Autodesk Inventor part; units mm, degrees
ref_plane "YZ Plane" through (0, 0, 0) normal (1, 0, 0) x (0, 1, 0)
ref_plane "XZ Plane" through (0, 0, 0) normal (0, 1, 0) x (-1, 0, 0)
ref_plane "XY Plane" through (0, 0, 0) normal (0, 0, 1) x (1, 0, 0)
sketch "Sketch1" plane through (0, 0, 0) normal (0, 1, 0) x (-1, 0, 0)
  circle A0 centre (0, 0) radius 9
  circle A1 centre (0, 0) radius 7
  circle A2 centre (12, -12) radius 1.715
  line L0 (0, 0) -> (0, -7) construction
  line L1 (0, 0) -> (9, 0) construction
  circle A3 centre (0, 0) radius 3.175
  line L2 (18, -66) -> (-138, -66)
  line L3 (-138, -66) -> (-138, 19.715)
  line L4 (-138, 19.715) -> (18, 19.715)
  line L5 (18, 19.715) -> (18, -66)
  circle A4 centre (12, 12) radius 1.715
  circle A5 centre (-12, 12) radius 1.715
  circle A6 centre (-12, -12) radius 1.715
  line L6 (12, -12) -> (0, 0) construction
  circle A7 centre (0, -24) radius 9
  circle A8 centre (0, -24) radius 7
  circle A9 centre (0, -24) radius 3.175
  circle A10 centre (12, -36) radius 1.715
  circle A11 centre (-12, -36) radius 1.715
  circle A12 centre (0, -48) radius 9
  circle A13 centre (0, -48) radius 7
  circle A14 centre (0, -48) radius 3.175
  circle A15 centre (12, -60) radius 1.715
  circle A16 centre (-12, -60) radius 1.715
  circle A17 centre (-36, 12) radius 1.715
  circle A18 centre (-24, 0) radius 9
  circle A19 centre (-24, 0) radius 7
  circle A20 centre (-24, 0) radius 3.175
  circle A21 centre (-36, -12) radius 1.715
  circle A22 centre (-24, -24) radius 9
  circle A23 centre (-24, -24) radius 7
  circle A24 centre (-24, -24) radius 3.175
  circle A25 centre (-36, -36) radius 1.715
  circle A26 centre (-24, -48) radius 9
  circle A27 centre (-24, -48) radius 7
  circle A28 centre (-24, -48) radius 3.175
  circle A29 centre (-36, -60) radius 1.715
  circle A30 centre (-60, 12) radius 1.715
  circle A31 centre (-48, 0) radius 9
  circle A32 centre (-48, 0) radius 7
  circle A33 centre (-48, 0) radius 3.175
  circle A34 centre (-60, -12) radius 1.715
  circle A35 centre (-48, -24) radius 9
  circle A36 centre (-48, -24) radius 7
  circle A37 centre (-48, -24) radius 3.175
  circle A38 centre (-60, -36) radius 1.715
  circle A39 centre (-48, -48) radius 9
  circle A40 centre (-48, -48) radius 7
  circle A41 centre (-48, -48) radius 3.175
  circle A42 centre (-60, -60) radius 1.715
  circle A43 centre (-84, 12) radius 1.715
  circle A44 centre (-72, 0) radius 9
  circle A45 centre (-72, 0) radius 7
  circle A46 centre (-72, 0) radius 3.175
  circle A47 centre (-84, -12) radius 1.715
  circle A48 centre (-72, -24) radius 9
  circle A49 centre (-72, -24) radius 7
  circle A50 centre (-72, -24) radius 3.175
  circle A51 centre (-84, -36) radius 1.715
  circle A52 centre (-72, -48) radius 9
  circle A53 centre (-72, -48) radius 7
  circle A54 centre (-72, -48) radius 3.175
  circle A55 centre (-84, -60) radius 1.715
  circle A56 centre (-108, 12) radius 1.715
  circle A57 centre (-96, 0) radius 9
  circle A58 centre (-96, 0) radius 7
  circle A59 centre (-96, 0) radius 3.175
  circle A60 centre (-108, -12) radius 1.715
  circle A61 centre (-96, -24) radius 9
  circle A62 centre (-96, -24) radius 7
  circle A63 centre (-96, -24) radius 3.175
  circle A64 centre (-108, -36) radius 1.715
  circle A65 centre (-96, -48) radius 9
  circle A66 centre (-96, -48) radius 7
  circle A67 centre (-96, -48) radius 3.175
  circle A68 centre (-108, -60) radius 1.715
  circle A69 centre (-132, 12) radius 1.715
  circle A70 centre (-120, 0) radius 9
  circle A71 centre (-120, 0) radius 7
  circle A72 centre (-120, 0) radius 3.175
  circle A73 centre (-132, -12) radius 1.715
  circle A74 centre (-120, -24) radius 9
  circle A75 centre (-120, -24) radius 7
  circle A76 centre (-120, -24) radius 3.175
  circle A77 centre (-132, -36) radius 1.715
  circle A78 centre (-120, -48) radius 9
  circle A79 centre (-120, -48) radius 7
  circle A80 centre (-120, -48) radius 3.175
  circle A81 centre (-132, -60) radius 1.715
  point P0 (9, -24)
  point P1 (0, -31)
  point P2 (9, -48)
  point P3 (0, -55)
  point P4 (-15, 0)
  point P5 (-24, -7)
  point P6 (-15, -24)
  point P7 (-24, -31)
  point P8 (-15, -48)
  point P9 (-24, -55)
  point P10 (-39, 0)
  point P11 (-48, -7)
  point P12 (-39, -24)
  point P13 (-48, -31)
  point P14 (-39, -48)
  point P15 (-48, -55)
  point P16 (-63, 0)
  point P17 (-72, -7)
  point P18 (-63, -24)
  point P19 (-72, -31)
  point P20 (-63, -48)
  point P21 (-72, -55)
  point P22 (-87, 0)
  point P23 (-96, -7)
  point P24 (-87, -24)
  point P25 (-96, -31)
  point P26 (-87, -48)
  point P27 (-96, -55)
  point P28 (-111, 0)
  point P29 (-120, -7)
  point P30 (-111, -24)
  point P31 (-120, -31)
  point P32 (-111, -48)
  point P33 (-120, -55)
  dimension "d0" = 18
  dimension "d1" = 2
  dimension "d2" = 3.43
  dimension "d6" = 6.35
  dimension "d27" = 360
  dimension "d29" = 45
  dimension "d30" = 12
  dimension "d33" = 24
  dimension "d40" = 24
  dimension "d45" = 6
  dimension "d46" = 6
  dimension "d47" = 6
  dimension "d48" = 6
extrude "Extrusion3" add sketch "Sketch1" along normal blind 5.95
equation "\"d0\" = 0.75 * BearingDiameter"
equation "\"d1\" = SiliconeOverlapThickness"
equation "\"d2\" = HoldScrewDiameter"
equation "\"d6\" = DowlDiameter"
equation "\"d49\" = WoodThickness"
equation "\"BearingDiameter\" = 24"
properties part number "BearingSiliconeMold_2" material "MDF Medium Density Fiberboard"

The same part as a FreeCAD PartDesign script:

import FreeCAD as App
import Part
import Sketcher
from FreeCAD import Vector


def add_polygon(sketch, points):
    """Adds a closed chain of lines whose ends are joined by coincident constraints."""
    first, n = sketch.GeometryCount, len(points)
    for a, b in zip(points, points[1:] + points[:1]):
        sketch.addGeometry(Part.LineSegment(App.Vector(*a, 0), App.Vector(*b, 0)), False)
    for i in range(n):
        sketch.addConstraint(Sketcher.Constraint("Coincident", first + i, 2, first + (i + 1) % n, 1))

doc = App.newDocument("Part")
body = doc.addObject("PartDesign::Body", "Body")
body.AllowCompound = True

sketch1 = doc.addObject("Sketcher::SketchObject", "Sketch")
body.addObject(sketch1)
sketch1.AttachmentSupport = (doc.XZ_Plane, [""])
sketch1.MapMode = "FlatFace"
sketch1.addGeometry(Part.Circle(Vector(0, 0, 0), Vector(0, 0, 1), 7), False)
sketch1.addGeometry(Part.Circle(Vector(0, 0, 0), Vector(0, 0, 1), 3.2), False)
add_polygon(sketch1, [(138, -66), (-18, -66), (-18, 19.7), (138, 19.7)])
sketch1.addGeometry(Part.Circle(Vector(132, -60, 0), Vector(0, 0, 1), 1.7), False)
sketch1.addGeometry(Part.Circle(Vector(108, -60, 0), Vector(0, 0, 1), 1.7), False)
sketch1.addGeometry(Part.Circle(Vector(120, -48, 0), Vector(0, 0, 1), 9), False)
sketch1.addGeometry(Part.Circle(Vector(84, -60, 0), Vector(0, 0, 1), 1.7), False)
sketch1.addGeometry(Part.Circle(Vector(96, -48, 0), Vector(0, 0, 1), 9), False)
sketch1.addGeometry(Part.Circle(Vector(72, -48, 0), Vector(0, 0, 1), 9), False)
sketch1.addGeometry(Part.Circle(Vector(132, -36, 0), Vector(0, 0, 1), 1.7), False)
sketch1.addGeometry(Part.Circle(Vector(108, -36, 0), Vector(0, 0, 1), 1.7), False)
sketch1.addGeometry(Part.Circle(Vector(120, -24, 0), Vector(0, 0, 1), 9), False)
sketch1.addGeometry(Part.Circle(Vector(84, -36, 0), Vector(0, 0, 1), 1.7), False)
sketch1.addGeometry(Part.Circle(Vector(96, -24, 0), Vector(0, 0, 1), 9), False)
sketch1.addGeometry(Part.Circle(Vector(72, -24, 0), Vector(0, 0, 1), 9), False)
sketch1.addGeometry(Part.Circle(Vector(60, -60, 0), Vector(0, 0, 1), 1.7), False)
sketch1.addGeometry(Part.Circle(Vector(36, -60, 0), Vector(0, 0, 1), 1.7), False)
sketch1.addGeometry(Part.Circle(Vector(48, -48, 0), Vector(0, 0, 1), 9), False)
sketch1.addGeometry(Part.Circle(Vector(24, -48, 0), Vector(0, 0, 1), 9), False)
sketch1.addGeometry(Part.Circle(Vector(12, -60, 0), Vector(0, 0, 1), 1.7), False)
sketch1.addGeometry(Part.Circle(Vector(-12, -60, 0), Vector(0, 0, 1), 1.7), False)
sketch1.addGeometry(Part.Circle(Vector(0, -48, 0), Vector(0, 0, 1), 9), False)
sketch1.addGeometry(Part.Circle(Vector(60, -36, 0), Vector(0, 0, 1), 1.7), False)
sketch1.addGeometry(Part.Circle(Vector(36, -36, 0), Vector(0, 0, 1), 1.7), False)
sketch1.addGeometry(Part.Circle(Vector(48, -24, 0), Vector(0, 0, 1), 9), False)
sketch1.addGeometry(Part.Circle(Vector(24, -24, 0), Vector(0, 0, 1), 9), False)
sketch1.addGeometry(Part.Circle(Vector(12, -36, 0), Vector(0, 0, 1), 1.7), False)
sketch1.addGeometry(Part.Circle(Vector(-12, -36, 0), Vector(0, 0, 1), 1.7), False)
sketch1.addGeometry(Part.Circle(Vector(0, -24, 0), Vector(0, 0, 1), 9), False)
sketch1.addGeometry(Part.Circle(Vector(132, -12, 0), Vector(0, 0, 1), 1.7), False)
sketch1.addGeometry(Part.Circle(Vector(108, -12, 0), Vector(0, 0, 1), 1.7), False)
sketch1.addGeometry(Part.Circle(Vector(84, -12, 0), Vector(0, 0, 1), 1.7), False)
sketch1.addGeometry(Part.Circle(Vector(120, 0, 0), Vector(0, 0, 1), 9), False)
sketch1.addGeometry(Part.Circle(Vector(132, 12, 0), Vector(0, 0, 1), 1.7), False)
sketch1.addGeometry(Part.Circle(Vector(108, 12, 0), Vector(0, 0, 1), 1.7), False)
sketch1.addGeometry(Part.Circle(Vector(96, 0, 0), Vector(0, 0, 1), 9), False)
sketch1.addGeometry(Part.Circle(Vector(72, 0, 0), Vector(0, 0, 1), 9), False)
sketch1.addGeometry(Part.Circle(Vector(84, 12, 0), Vector(0, 0, 1), 1.7), False)
sketch1.addGeometry(Part.Circle(Vector(60, -12, 0), Vector(0, 0, 1), 1.7), False)
sketch1.addGeometry(Part.Circle(Vector(36, -12, 0), Vector(0, 0, 1), 1.7), False)
sketch1.addGeometry(Part.Circle(Vector(12, -12, 0), Vector(0, 0, 1), 1.7), False)
sketch1.addGeometry(Part.Circle(Vector(-12, -12, 0), Vector(0, 0, 1), 1.7), False)
sketch1.addGeometry(Part.Circle(Vector(48, 0, 0), Vector(0, 0, 1), 9), False)
sketch1.addGeometry(Part.Circle(Vector(24, 0, 0), Vector(0, 0, 1), 9), False)
sketch1.addGeometry(Part.Circle(Vector(60, 12, 0), Vector(0, 0, 1), 1.7), False)
sketch1.addGeometry(Part.Circle(Vector(36, 12, 0), Vector(0, 0, 1), 1.7), False)
sketch1.addGeometry(Part.Circle(Vector(0, 0, 0), Vector(0, 0, 1), 9), False)
sketch1.addGeometry(Part.Circle(Vector(12, 12, 0), Vector(0, 0, 1), 1.7), False)
sketch1.addGeometry(Part.Circle(Vector(-12, 12, 0), Vector(0, 0, 1), 1.7), False)
sketch1.addGeometry(Part.Circle(Vector(0, -24, 0), Vector(0, 0, 1), 7), False)
sketch1.addGeometry(Part.Circle(Vector(0, -24, 0), Vector(0, 0, 1), 3.2), False)
sketch1.addGeometry(Part.Circle(Vector(0, -48, 0), Vector(0, 0, 1), 7), False)
sketch1.addGeometry(Part.Circle(Vector(0, -48, 0), Vector(0, 0, 1), 3.2), False)
sketch1.addGeometry(Part.Circle(Vector(24, 0, 0), Vector(0, 0, 1), 7), False)
sketch1.addGeometry(Part.Circle(Vector(24, 0, 0), Vector(0, 0, 1), 3.2), False)
sketch1.addGeometry(Part.Circle(Vector(24, -24, 0), Vector(0, 0, 1), 7), False)
sketch1.addGeometry(Part.Circle(Vector(24, -24, 0), Vector(0, 0, 1), 3.2), False)
sketch1.addGeometry(Part.Circle(Vector(24, -48, 0), Vector(0, 0, 1), 7), False)
sketch1.addGeometry(Part.Circle(Vector(24, -48, 0), Vector(0, 0, 1), 3.2), False)
sketch1.addGeometry(Part.Circle(Vector(48, 0, 0), Vector(0, 0, 1), 7), False)
sketch1.addGeometry(Part.Circle(Vector(48, 0, 0), Vector(0, 0, 1), 3.2), False)
sketch1.addGeometry(Part.Circle(Vector(48, -24, 0), Vector(0, 0, 1), 7), False)
sketch1.addGeometry(Part.Circle(Vector(48, -24, 0), Vector(0, 0, 1), 3.2), False)
sketch1.addGeometry(Part.Circle(Vector(48, -48, 0), Vector(0, 0, 1), 7), False)
sketch1.addGeometry(Part.Circle(Vector(48, -48, 0), Vector(0, 0, 1), 3.2), False)
sketch1.addGeometry(Part.Circle(Vector(72, 0, 0), Vector(0, 0, 1), 7), False)
sketch1.addGeometry(Part.Circle(Vector(72, 0, 0), Vector(0, 0, 1), 3.2), False)
sketch1.addGeometry(Part.Circle(Vector(72, -24, 0), Vector(0, 0, 1), 7), False)
sketch1.addGeometry(Part.Circle(Vector(72, -24, 0), Vector(0, 0, 1), 3.2), False)
sketch1.addGeometry(Part.Circle(Vector(72, -48, 0), Vector(0, 0, 1), 7), False)
sketch1.addGeometry(Part.Circle(Vector(72, -48, 0), Vector(0, 0, 1), 3.2), False)
sketch1.addGeometry(Part.Circle(Vector(96, 0, 0), Vector(0, 0, 1), 7), False)
sketch1.addGeometry(Part.Circle(Vector(96, 0, 0), Vector(0, 0, 1), 3.2), False)
sketch1.addGeometry(Part.Circle(Vector(96, -24, 0), Vector(0, 0, 1), 7), False)
sketch1.addGeometry(Part.Circle(Vector(96, -24, 0), Vector(0, 0, 1), 3.2), False)
sketch1.addGeometry(Part.Circle(Vector(96, -48, 0), Vector(0, 0, 1), 7), False)
sketch1.addGeometry(Part.Circle(Vector(96, -48, 0), Vector(0, 0, 1), 3.2), False)
sketch1.addGeometry(Part.Circle(Vector(120, 0, 0), Vector(0, 0, 1), 7), False)
sketch1.addGeometry(Part.Circle(Vector(120, 0, 0), Vector(0, 0, 1), 3.2), False)
sketch1.addGeometry(Part.Circle(Vector(120, -24, 0), Vector(0, 0, 1), 7), False)
sketch1.addGeometry(Part.Circle(Vector(120, -24, 0), Vector(0, 0, 1), 3.2), False)
sketch1.addGeometry(Part.Circle(Vector(120, -48, 0), Vector(0, 0, 1), 7), False)
sketch1.addGeometry(Part.Circle(Vector(120, -48, 0), Vector(0, 0, 1), 3.2), False)
sketch1.addConstraint(Sketcher.Constraint("Horizontal", 2))
sketch1.addConstraint(Sketcher.Constraint("Vertical", 3))
sketch1.addConstraint(Sketcher.Constraint("Horizontal", 4))
sketch1.addConstraint(Sketcher.Constraint("Vertical", 5))
sketch1.addConstraint(Sketcher.Constraint("Coincident", 0, 3, -1, 1))
sketch1.addConstraint(Sketcher.Constraint("Coincident", 1, 3, -1, 1))
sketch1.addConstraint(Sketcher.Constraint("Coincident", 49, 3, -1, 1))
sketch1.addConstraint(Sketcher.Constraint("Coincident", 52, 3, 31, 3))
sketch1.addConstraint(Sketcher.Constraint("Coincident", 53, 3, 31, 3))
sketch1.addConstraint(Sketcher.Constraint("Coincident", 54, 3, 24, 3))
sketch1.addConstraint(Sketcher.Constraint("Coincident", 55, 3, 24, 3))
sketch1.addConstraint(Sketcher.Constraint("Coincident", 56, 3, 46, 3))
sketch1.addConstraint(Sketcher.Constraint("Coincident", 57, 3, 46, 3))
sketch1.addConstraint(Sketcher.Constraint("Coincident", 58, 3, 28, 3))
sketch1.addConstraint(Sketcher.Constraint("Coincident", 59, 3, 28, 3))
sketch1.addConstraint(Sketcher.Constraint("Coincident", 60, 3, 21, 3))
sketch1.addConstraint(Sketcher.Constraint("Coincident", 61, 3, 21, 3))
sketch1.addConstraint(Sketcher.Constraint("Coincident", 62, 3, 45, 3))
sketch1.addConstraint(Sketcher.Constraint("Coincident", 63, 3, 45, 3))
sketch1.addConstraint(Sketcher.Constraint("Coincident", 64, 3, 27, 3))
sketch1.addConstraint(Sketcher.Constraint("Coincident", 65, 3, 27, 3))
sketch1.addConstraint(Sketcher.Constraint("Coincident", 66, 3, 20, 3))
sketch1.addConstraint(Sketcher.Constraint("Coincident", 67, 3, 20, 3))
sketch1.addConstraint(Sketcher.Constraint("Coincident", 68, 3, 39, 3))
sketch1.addConstraint(Sketcher.Constraint("Coincident", 69, 3, 39, 3))
sketch1.addConstraint(Sketcher.Constraint("Coincident", 70, 3, 17, 3))
sketch1.addConstraint(Sketcher.Constraint("Coincident", 71, 3, 17, 3))
sketch1.addConstraint(Sketcher.Constraint("Coincident", 72, 3, 11, 3))
sketch1.addConstraint(Sketcher.Constraint("Coincident", 73, 3, 11, 3))
sketch1.addConstraint(Sketcher.Constraint("Coincident", 74, 3, 38, 3))
sketch1.addConstraint(Sketcher.Constraint("Coincident", 75, 3, 38, 3))
sketch1.addConstraint(Sketcher.Constraint("Coincident", 76, 3, 16, 3))
sketch1.addConstraint(Sketcher.Constraint("Coincident", 77, 3, 16, 3))
sketch1.addConstraint(Sketcher.Constraint("Coincident", 78, 3, 10, 3))
sketch1.addConstraint(Sketcher.Constraint("Coincident", 79, 3, 10, 3))
sketch1.addConstraint(Sketcher.Constraint("Coincident", 80, 3, 35, 3))
sketch1.addConstraint(Sketcher.Constraint("Coincident", 81, 3, 35, 3))
sketch1.addConstraint(Sketcher.Constraint("Coincident", 82, 3, 14, 3))
sketch1.addConstraint(Sketcher.Constraint("Coincident", 83, 3, 14, 3))
sketch1.addConstraint(Sketcher.Constraint("Coincident", 84, 3, 8, 3))
sketch1.addConstraint(Sketcher.Constraint("Coincident", 85, 3, 8, 3))
sketch1.addConstraint(Sketcher.Constraint("Equal", 6, 7))
sketch1.addConstraint(Sketcher.Constraint("Equal", 7, 9))
sketch1.addConstraint(Sketcher.Constraint("Equal", 8, 10))
sketch1.addConstraint(Sketcher.Constraint("Equal", 10, 11))
sketch1.addConstraint(Sketcher.Constraint("Equal", 9, 12))
sketch1.addConstraint(Sketcher.Constraint("Equal", 12, 13))
sketch1.addConstraint(Sketcher.Constraint("Equal", 11, 14))
sketch1.addConstraint(Sketcher.Constraint("Equal", 13, 15))
sketch1.addConstraint(Sketcher.Constraint("Equal", 14, 16))
sketch1.addConstraint(Sketcher.Constraint("Equal", 16, 17))
sketch1.addConstraint(Sketcher.Constraint("Equal", 15, 18))
sketch1.addConstraint(Sketcher.Constraint("Equal", 18, 19))
sketch1.addConstraint(Sketcher.Constraint("Equal", 17, 20))
sketch1.addConstraint(Sketcher.Constraint("Equal", 20, 21))
sketch1.addConstraint(Sketcher.Constraint("Equal", 19, 22))
sketch1.addConstraint(Sketcher.Constraint("Equal", 22, 23))
sketch1.addConstraint(Sketcher.Constraint("Equal", 21, 24))
sketch1.addConstraint(Sketcher.Constraint("Equal", 23, 25))
sketch1.addConstraint(Sketcher.Constraint("Equal", 25, 26))
sketch1.addConstraint(Sketcher.Constraint("Equal", 24, 27))
sketch1.addConstraint(Sketcher.Constraint("Equal", 27, 28))
sketch1.addConstraint(Sketcher.Constraint("Equal", 26, 29))
sketch1.addConstraint(Sketcher.Constraint("Equal", 29, 30))
sketch1.addConstraint(Sketcher.Constraint("Equal", 28, 31))
sketch1.addConstraint(Sketcher.Constraint("Equal", 30, 32))
sketch1.addConstraint(Sketcher.Constraint("Equal", 32, 33))
sketch1.addConstraint(Sketcher.Constraint("Equal", 33, 34))
sketch1.addConstraint(Sketcher.Constraint("Equal", 31, 35))
sketch1.addConstraint(Sketcher.Constraint("Equal", 34, 36))
sketch1.addConstraint(Sketcher.Constraint("Equal", 36, 37))
sketch1.addConstraint(Sketcher.Constraint("Equal", 35, 38))
sketch1.addConstraint(Sketcher.Constraint("Equal", 38, 39))
sketch1.addConstraint(Sketcher.Constraint("Equal", 37, 40))
sketch1.addConstraint(Sketcher.Constraint("Equal", 40, 41))
sketch1.addConstraint(Sketcher.Constraint("Equal", 41, 42))
sketch1.addConstraint(Sketcher.Constraint("Equal", 42, 43))
sketch1.addConstraint(Sketcher.Constraint("Equal", 43, 44))
sketch1.addConstraint(Sketcher.Constraint("Equal", 39, 45))
sketch1.addConstraint(Sketcher.Constraint("Equal", 45, 46))
sketch1.addConstraint(Sketcher.Constraint("Equal", 44, 47))
sketch1.addConstraint(Sketcher.Constraint("Equal", 47, 48))
sketch1.addConstraint(Sketcher.Constraint("Equal", 46, 49))
sketch1.addConstraint(Sketcher.Constraint("Equal", 48, 50))
sketch1.addConstraint(Sketcher.Constraint("Equal", 50, 51))
sketch1.addConstraint(Sketcher.Constraint("Equal", 0, 52))
sketch1.addConstraint(Sketcher.Constraint("Equal", 1, 53))
sketch1.addConstraint(Sketcher.Constraint("Equal", 52, 54))
sketch1.addConstraint(Sketcher.Constraint("Equal", 53, 55))
sketch1.addConstraint(Sketcher.Constraint("Equal", 54, 56))
sketch1.addConstraint(Sketcher.Constraint("Equal", 55, 57))
sketch1.addConstraint(Sketcher.Constraint("Equal", 56, 58))
sketch1.addConstraint(Sketcher.Constraint("Equal", 57, 59))
sketch1.addConstraint(Sketcher.Constraint("Equal", 58, 60))
sketch1.addConstraint(Sketcher.Constraint("Equal", 59, 61))
sketch1.addConstraint(Sketcher.Constraint("Equal", 60, 62))
sketch1.addConstraint(Sketcher.Constraint("Equal", 61, 63))
sketch1.addConstraint(Sketcher.Constraint("Equal", 62, 64))
sketch1.addConstraint(Sketcher.Constraint("Equal", 63, 65))
sketch1.addConstraint(Sketcher.Constraint("Equal", 64, 66))
sketch1.addConstraint(Sketcher.Constraint("Equal", 65, 67))
sketch1.addConstraint(Sketcher.Constraint("Equal", 66, 68))
sketch1.addConstraint(Sketcher.Constraint("Equal", 67, 69))
sketch1.addConstraint(Sketcher.Constraint("Equal", 68, 70))
sketch1.addConstraint(Sketcher.Constraint("Equal", 69, 71))
sketch1.addConstraint(Sketcher.Constraint("Equal", 70, 72))
sketch1.addConstraint(Sketcher.Constraint("Equal", 71, 73))
sketch1.addConstraint(Sketcher.Constraint("Equal", 72, 74))
sketch1.addConstraint(Sketcher.Constraint("Equal", 73, 75))
sketch1.addConstraint(Sketcher.Constraint("Equal", 74, 76))
sketch1.addConstraint(Sketcher.Constraint("Equal", 75, 77))
sketch1.addConstraint(Sketcher.Constraint("Equal", 76, 78))
sketch1.addConstraint(Sketcher.Constraint("Equal", 77, 79))
sketch1.addConstraint(Sketcher.Constraint("Equal", 78, 80))
sketch1.addConstraint(Sketcher.Constraint("Equal", 79, 81))
sketch1.addConstraint(Sketcher.Constraint("Equal", 80, 82))
sketch1.addConstraint(Sketcher.Constraint("Equal", 81, 83))
sketch1.addConstraint(Sketcher.Constraint("Equal", 82, 84))
sketch1.addConstraint(Sketcher.Constraint("Equal", 83, 85))
sketch1.addConstraint(Sketcher.Constraint("Symmetric", 44, 3, 50, 3, -1, 1))
sketch1.addConstraint(Sketcher.Constraint("Symmetric", 43, 3, 51, 3, -1, 1))
sketch1.addConstraint(Sketcher.Constraint("Symmetric", 22, 3, 23, 3, -2))
sketch1.addConstraint(Sketcher.Constraint("Symmetric", 29, 3, 30, 3, -2))
sketch1.addConstraint(Sketcher.Constraint("Symmetric", 43, 3, 44, 3, -2))
sketch1.addConstraint(Sketcher.Constraint("Symmetric", 32, 3, 36, 3, -1))
sketch1.addConstraint(Sketcher.Constraint("Symmetric", 33, 3, 37, 3, -1))
sketch1.addConstraint(Sketcher.Constraint("Symmetric", 34, 3, 40, 3, -1))
sketch1.addConstraint(Sketcher.Constraint("Symmetric", 41, 3, 47, 3, -1))
sketch1.addConstraint(Sketcher.Constraint("Symmetric", 42, 3, 48, 3, -1))
sketch1.addConstraint(Sketcher.Constraint("PointOnObject", 24, 3, -2))
sketch1.addConstraint(Sketcher.Constraint("PointOnObject", 31, 3, -2))
sketch1.addConstraint(Sketcher.Constraint("PointOnObject", 35, 3, -1))
sketch1.addConstraint(Sketcher.Constraint("PointOnObject", 38, 3, -1))
sketch1.addConstraint(Sketcher.Constraint("PointOnObject", 39, 3, -1))
sketch1.addConstraint(Sketcher.Constraint("PointOnObject", 45, 3, -1))
sketch1.addConstraint(Sketcher.Constraint("PointOnObject", 46, 3, -1))
sketch1.addConstraint(Sketcher.Constraint("Horizontal", 6, 3, 7, 3))
sketch1.addConstraint(Sketcher.Constraint("Horizontal", 7, 3, 9, 3))
sketch1.addConstraint(Sketcher.Constraint("Horizontal", 8, 3, 10, 3))
sketch1.addConstraint(Sketcher.Constraint("Horizontal", 10, 3, 11, 3))
sketch1.addConstraint(Sketcher.Constraint("Horizontal", 12, 3, 13, 3))
sketch1.addConstraint(Sketcher.Constraint("Horizontal", 13, 3, 15, 3))
sketch1.addConstraint(Sketcher.Constraint("Horizontal", 14, 3, 16, 3))
sketch1.addConstraint(Sketcher.Constraint("Horizontal", 16, 3, 17, 3))
sketch1.addConstraint(Sketcher.Constraint("Horizontal", 9, 3, 18, 3))
sketch1.addConstraint(Sketcher.Constraint("Horizontal", 18, 3, 19, 3))
sketch1.addConstraint(Sketcher.Constraint("Horizontal", 11, 3, 20, 3))
sketch1.addConstraint(Sketcher.Constraint("Horizontal", 20, 3, 21, 3))
sketch1.addConstraint(Sketcher.Constraint("Horizontal", 19, 3, 22, 3))
sketch1.addConstraint(Sketcher.Constraint("Horizontal", 21, 3, 24, 3))
sketch1.addConstraint(Sketcher.Constraint("Horizontal", 15, 3, 25, 3))
sketch1.addConstraint(Sketcher.Constraint("Horizontal", 25, 3, 26, 3))
sketch1.addConstraint(Sketcher.Constraint("Horizontal", 17, 3, 27, 3))
sketch1.addConstraint(Sketcher.Constraint("Horizontal", 27, 3, 28, 3))
sketch1.addConstraint(Sketcher.Constraint("Horizontal", 26, 3, 29, 3))
sketch1.addConstraint(Sketcher.Constraint("Horizontal", 28, 3, 31, 3))
sketch1.addConstraint(Sketcher.Constraint("Horizontal", 32, 3, 33, 3))
sketch1.addConstraint(Sketcher.Constraint("Horizontal", 33, 3, 34, 3))
sketch1.addConstraint(Sketcher.Constraint("Horizontal", 34, 3, 41, 3))
sketch1.addConstraint(Sketcher.Constraint("Horizontal", 41, 3, 42, 3))
sketch1.addConstraint(Sketcher.Constraint("Horizontal", 42, 3, 43, 3))
sketch1.addConstraint(Sketcher.Constraint("Vertical", 6, 3, 12, 3))
sketch1.addConstraint(Sketcher.Constraint("Vertical", 7, 3, 13, 3))
sketch1.addConstraint(Sketcher.Constraint("Vertical", 8, 3, 14, 3))
sketch1.addConstraint(Sketcher.Constraint("Vertical", 9, 3, 15, 3))
sketch1.addConstraint(Sketcher.Constraint("Vertical", 10, 3, 16, 3))
sketch1.addConstraint(Sketcher.Constraint("Vertical", 11, 3, 17, 3))
sketch1.addConstraint(Sketcher.Constraint("Vertical", 18, 3, 25, 3))
sketch1.addConstraint(Sketcher.Constraint("Vertical", 19, 3, 26, 3))
sketch1.addConstraint(Sketcher.Constraint("Vertical", 20, 3, 27, 3))
sketch1.addConstraint(Sketcher.Constraint("Vertical", 21, 3, 28, 3))
sketch1.addConstraint(Sketcher.Constraint("Vertical", 22, 3, 29, 3))
sketch1.addConstraint(Sketcher.Constraint("Vertical", 12, 3, 32, 3))
sketch1.addConstraint(Sketcher.Constraint("Vertical", 13, 3, 33, 3))
sketch1.addConstraint(Sketcher.Constraint("Vertical", 15, 3, 34, 3))
sketch1.addConstraint(Sketcher.Constraint("Vertical", 14, 3, 35, 3))
sketch1.addConstraint(Sketcher.Constraint("Vertical", 16, 3, 38, 3))
sketch1.addConstraint(Sketcher.Constraint("Vertical", 17, 3, 39, 3))
sketch1.addConstraint(Sketcher.Constraint("Vertical", 25, 3, 41, 3))
sketch1.addConstraint(Sketcher.Constraint("Vertical", 26, 3, 42, 3))
sketch1.addConstraint(Sketcher.Constraint("Vertical", 29, 3, 43, 3))
sketch1.addConstraint(Sketcher.Constraint("Vertical", 27, 3, 45, 3))
sketch1.addConstraint(Sketcher.Constraint("Vertical", 28, 3, 46, 3))
sketch1.addConstraint(Sketcher.Constraint("Diameter", 8, 18.0))
sketch1.addConstraint(Sketcher.Constraint("Diameter", 1, 6.35))
sketch1.addConstraint(Sketcher.Constraint("Diameter", 6, 3.43))
sketch1.addConstraint(Sketcher.Constraint("Diameter", 0, 14.0))
sketch1.addConstraint(Sketcher.Constraint("DistanceY", 14, 3, -1, 1, 24.0))
sketch1.addConstraint(Sketcher.Constraint("DistanceX", -1, 1, 21, 3, 24.0))
sketch1.addConstraint(Sketcher.Constraint("DistanceX", -1, 1, 22, 3, 12.0))
sketch1.addConstraint(Sketcher.Constraint("DistanceY", 32, 3, -1, 1, 12.0))
sketch1.addConstraint(Sketcher.Constraint("DistanceX", 2, 2, -1, 1, 18.0))
sketch1.addConstraint(Sketcher.Constraint("DistanceX", 2, 2, 2, 1, 156.0))
sketch1.addConstraint(Sketcher.Constraint("DistanceX", -1, 1, 6, 3, 132.0))
sketch1.addConstraint(Sketcher.Constraint("DistanceY", 6, 3, -1, 1, 60.0))
sketch1.addConstraint(Sketcher.Constraint("DistanceX", -1, 1, 7, 3, 108.0))
sketch1.addConstraint(Sketcher.Constraint("DistanceX", -1, 1, 8, 3, 120.0))
sketch1.addConstraint(Sketcher.Constraint("DistanceY", 8, 3, -1, 1, 48.0))
sketch1.addConstraint(Sketcher.Constraint("DistanceX", -1, 1, 9, 3, 84.0))
sketch1.addConstraint(Sketcher.Constraint("DistanceX", -1, 1, 10, 3, 96.0))
sketch1.addConstraint(Sketcher.Constraint("DistanceX", -1, 1, 11, 3, 72.0))
sketch1.addConstraint(Sketcher.Constraint("DistanceY", 12, 3, -1, 1, 36.0))
sketch1.addConstraint(Sketcher.Constraint("DistanceX", -1, 1, 18, 3, 60.0))
sketch1.addConstraint(Sketcher.Constraint("DistanceX", -1, 1, 19, 3, 36.0))
sketch1.addConstraint(Sketcher.Constraint("DistanceX", -1, 1, 20, 3, 48.0))
sketch1.addConstraint(Sketcher.Constraint("DistanceY", 2, 2, -1, 1, 66.0))
sketch1.addConstraint(Sketcher.Constraint("DistanceY", 3, 1, 3, 2, 85.715))
pad1 = doc.addObject("PartDesign::Pad", "Pad")
body.addObject(pad1)
pad1.Profile = sketch1
pad1.Length = 5.95
pad1.Reversed = True

doc.recompute()
